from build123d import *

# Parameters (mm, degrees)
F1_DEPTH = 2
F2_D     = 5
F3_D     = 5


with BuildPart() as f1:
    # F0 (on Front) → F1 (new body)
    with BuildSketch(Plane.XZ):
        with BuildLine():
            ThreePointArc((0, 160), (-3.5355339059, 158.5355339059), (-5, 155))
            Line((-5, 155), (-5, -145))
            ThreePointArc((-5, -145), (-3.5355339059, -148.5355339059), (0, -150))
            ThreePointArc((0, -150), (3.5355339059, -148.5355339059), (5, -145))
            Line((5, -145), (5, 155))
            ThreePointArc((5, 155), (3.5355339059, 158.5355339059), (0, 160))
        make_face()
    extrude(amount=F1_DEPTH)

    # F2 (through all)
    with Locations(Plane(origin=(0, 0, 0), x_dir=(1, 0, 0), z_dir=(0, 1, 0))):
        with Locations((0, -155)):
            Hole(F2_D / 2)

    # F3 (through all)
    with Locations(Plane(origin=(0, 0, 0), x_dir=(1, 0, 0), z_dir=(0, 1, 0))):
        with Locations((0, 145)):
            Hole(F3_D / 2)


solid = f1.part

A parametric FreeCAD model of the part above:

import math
import FreeCAD as App
import Part
import Sketcher

V = App.Vector

doc = App.newDocument("Part")
body = doc.addObject("PartDesign::Body", "Body")

# Sketch on XZ plane
sketch1 = body.newObject("Sketcher::SketchObject", "Sketch")
sketch1.AttachmentSupport = (doc.getObject("XZ_Plane"), [""])
sketch1.MapMode = "FlatFace"
sketch1.addGeometry([
    Part.ArcOfCircle(Part.Circle(V(0, 155, 0), V(0, 0, 1), 5), math.radians(90), math.radians(180)),  # 0
    Part.LineSegment(V(-5, 155, 0), V(-5, -145, 0)),  # 1
    Part.ArcOfCircle(Part.Circle(V(0, -145, 0), V(0, 0, 1), 5), math.radians(180), math.radians(270)),  # 2
    Part.ArcOfCircle(Part.Circle(V(0, -145, 0), V(0, 0, 1), 5), math.radians(-90), math.radians(0)),  # 3
    Part.LineSegment(V(5, -145, 0), V(5, 155, 0)),  # 4
    Part.ArcOfCircle(Part.Circle(V(0, 155, 0), V(0, 0, 1), 5), math.radians(0), math.radians(90)),  # 5
], False)
sketch1.addConstraint([
    Sketcher.Constraint("Tangent", 0, 2, 1, 1),
    Sketcher.Constraint("Tangent", 1, 2, 2, 1),
    Sketcher.Constraint("Tangent", 2, 2, 3, 1),
    Sketcher.Constraint("Tangent", 3, 2, 4, 1),
    Sketcher.Constraint("Tangent", 4, 2, 5, 1),
    Sketcher.Constraint("Tangent", 5, 2, 0, 1),
    Sketcher.Constraint("Vertical", 1),
    Sketcher.Constraint("Vertical", 4),
    Sketcher.Constraint("Equal", 0, 2),
    Sketcher.Constraint("Equal", 2, 3),
    Sketcher.Constraint("PointOnObject", 0, 3, -2),
    Sketcher.Constraint("PointOnObject", 2, 2, -2),
    Sketcher.Constraint("PointOnObject", 5, 2, -2),
    Sketcher.Constraint("Radius", 0, 5.0),
    Sketcher.Constraint("DistanceY", 1, 2, 1, 1, 300.0),
    Sketcher.Constraint("DistanceY", -1, 1, 0, 3, 155.0),
])
pad1 = body.newObject("PartDesign::Pad", "Pad")
pad1.Profile = sketch1
pad1.Length = 2

# Sketch on XZ plane
sketch2 = body.newObject("Sketcher::SketchObject", "Sketch001")
sketch2.AttachmentSupport = (doc.getObject("XZ_Plane"), [""])
sketch2.MapMode = "FlatFace"
sketch2.addGeometry(Part.Circle(V(0, 155, 0), V(0, 0, 1), 2.5), False)
sketch2.addConstraint([
    Sketcher.Constraint("PointOnObject", 0, 3, -2),
    Sketcher.Constraint("Diameter", 0, 5.0),
    Sketcher.Constraint("DistanceY", -1, 1, 0, 3, 155.0),
])
doc.recompute()
hole = body.newObject("PartDesign::Hole", "Hole")
hole.Profile = sketch2
hole.ThreadType = "None"
hole.Diameter = 5
hole.DepthType = "ThroughAll"
hole.Reversed = True

# Sketch on XZ plane
sketch3 = body.newObject("Sketcher::SketchObject", "Sketch002")
sketch3.AttachmentSupport = (doc.getObject("XZ_Plane"), [""])
sketch3.MapMode = "FlatFace"
sketch3.addGeometry(Part.Circle(V(0, -145, 0), V(0, 0, 1), 2.5), False)
sketch3.addConstraint([
    Sketcher.Constraint("PointOnObject", 0, 3, -2),
    Sketcher.Constraint("Diameter", 0, 5.0),
    Sketcher.Constraint("DistanceY", 0, 3, -1, 1, 145.0),
])
doc.recompute()
hole2 = body.newObject("PartDesign::Hole", "Hole001")
hole2.Profile = sketch3
hole2.ThreadType = "None"
hole2.Diameter = 5
hole2.DepthType = "ThroughAll"
hole2.Reversed = True

doc.recompute()
